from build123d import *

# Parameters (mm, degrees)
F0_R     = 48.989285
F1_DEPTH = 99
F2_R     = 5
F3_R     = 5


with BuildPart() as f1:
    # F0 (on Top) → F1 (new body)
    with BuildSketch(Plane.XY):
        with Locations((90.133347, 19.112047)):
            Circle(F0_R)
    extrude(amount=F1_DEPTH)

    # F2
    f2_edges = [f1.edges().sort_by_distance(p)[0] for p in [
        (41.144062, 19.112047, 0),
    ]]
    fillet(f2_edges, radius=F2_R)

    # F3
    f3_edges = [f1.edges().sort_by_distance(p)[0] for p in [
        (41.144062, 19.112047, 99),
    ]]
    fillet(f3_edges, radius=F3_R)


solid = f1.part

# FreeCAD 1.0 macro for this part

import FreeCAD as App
import Part
import Sketcher
from FreeCAD import Vector
Q = App.Units.Quantity


def edges_at(feature, points):
    """Names of the edges that pass closest to the given points."""
    edges = feature.Shape.Edges
    near = lambda p: min(range(len(edges)), key=lambda i: edges[i].distToShape(Part.Vertex(*p))[0])
    return sorted({f"Edge{near(p) + 1}" for p in points})

doc = App.newDocument("Part")
body = doc.addObject("PartDesign::Body", "Body")

# Sketch on XY plane
sketch1 = body.newObject("Sketcher::SketchObject", "Sketch")
sketch1.AttachmentSupport = (doc.getObject("XY_Plane"), [""])
sketch1.MapMode = "FlatFace"
sketch1.addGeometry(Part.Circle(Vector(90.133347, 19.112047, 0), Vector(0, 0, 1), 48.989285), False)
sketch1.addConstraint(Sketcher.Constraint("Diameter", 0, Q("97.97857 mm")))
sketch1.addConstraint(Sketcher.Constraint("DistanceX", -1, 1, 0, 3, Q("90.133347 mm")))
sketch1.addConstraint(Sketcher.Constraint("DistanceY", -1, 1, 0, 3, Q("19.112047 mm")))
pad1 = body.newObject("PartDesign::Pad", "Pad")
pad1.Profile = sketch1
pad1.Length = 99
doc.recompute()

fillet = body.newObject("PartDesign::Fillet", "Fillet")
fillet.Base = (pad1, edges_at(pad1, [(41.144, 19.112, 0)]))
fillet.Radius = 5
doc.recompute()

fillet2 = body.newObject("PartDesign::Fillet", "Fillet001")
fillet2.Base = (fillet, edges_at(fillet, [(41.144, 19.112, 99)]))
fillet2.Radius = 5

doc.recompute()
